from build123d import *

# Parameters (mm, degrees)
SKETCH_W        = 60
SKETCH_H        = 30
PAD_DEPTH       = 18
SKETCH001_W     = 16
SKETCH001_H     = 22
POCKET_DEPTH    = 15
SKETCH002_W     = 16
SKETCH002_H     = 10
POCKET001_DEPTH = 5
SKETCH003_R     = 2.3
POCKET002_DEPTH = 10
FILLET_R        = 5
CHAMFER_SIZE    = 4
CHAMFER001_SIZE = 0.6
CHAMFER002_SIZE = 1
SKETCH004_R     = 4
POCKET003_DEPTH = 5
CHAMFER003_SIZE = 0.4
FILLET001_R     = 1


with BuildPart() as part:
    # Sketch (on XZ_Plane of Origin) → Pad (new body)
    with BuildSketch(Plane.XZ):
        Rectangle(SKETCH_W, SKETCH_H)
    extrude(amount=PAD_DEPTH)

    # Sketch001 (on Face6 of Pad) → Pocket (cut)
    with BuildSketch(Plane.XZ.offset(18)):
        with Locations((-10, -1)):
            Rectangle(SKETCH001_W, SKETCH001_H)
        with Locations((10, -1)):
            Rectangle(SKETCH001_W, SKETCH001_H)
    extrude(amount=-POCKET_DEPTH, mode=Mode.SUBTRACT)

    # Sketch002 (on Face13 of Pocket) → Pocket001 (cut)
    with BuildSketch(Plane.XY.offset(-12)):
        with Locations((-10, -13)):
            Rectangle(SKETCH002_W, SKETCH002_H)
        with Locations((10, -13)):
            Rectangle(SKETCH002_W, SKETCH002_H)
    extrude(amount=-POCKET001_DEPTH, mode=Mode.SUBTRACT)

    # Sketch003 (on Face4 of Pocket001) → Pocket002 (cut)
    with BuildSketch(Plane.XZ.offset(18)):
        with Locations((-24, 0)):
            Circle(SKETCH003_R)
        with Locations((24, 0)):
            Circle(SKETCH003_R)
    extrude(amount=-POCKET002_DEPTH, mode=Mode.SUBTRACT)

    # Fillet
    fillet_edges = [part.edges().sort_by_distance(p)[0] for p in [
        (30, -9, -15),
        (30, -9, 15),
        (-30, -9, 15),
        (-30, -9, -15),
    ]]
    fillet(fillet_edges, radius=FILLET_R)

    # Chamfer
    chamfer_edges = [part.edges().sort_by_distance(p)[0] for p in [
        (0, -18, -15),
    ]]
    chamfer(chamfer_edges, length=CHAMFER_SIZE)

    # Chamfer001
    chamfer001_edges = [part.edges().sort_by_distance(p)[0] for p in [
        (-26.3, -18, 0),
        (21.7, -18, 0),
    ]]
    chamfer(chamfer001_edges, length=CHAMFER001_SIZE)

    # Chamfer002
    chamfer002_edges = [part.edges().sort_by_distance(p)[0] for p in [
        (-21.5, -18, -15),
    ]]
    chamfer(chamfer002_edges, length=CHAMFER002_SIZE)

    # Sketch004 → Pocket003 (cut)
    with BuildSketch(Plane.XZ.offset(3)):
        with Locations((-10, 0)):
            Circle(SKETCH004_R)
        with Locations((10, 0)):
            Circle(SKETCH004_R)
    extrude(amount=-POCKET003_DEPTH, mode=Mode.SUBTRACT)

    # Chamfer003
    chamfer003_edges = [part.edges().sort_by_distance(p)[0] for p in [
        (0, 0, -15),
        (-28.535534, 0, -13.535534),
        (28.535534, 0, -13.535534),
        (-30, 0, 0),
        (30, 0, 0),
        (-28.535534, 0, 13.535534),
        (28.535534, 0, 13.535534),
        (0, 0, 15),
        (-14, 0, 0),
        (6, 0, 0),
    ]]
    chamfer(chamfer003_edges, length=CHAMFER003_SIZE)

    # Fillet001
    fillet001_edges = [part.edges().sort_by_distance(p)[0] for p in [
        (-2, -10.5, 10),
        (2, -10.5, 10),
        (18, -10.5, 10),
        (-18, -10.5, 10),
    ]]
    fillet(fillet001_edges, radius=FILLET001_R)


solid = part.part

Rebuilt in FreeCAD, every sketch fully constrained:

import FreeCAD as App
import Part
import Sketcher

V = App.Vector


def edges_at(feature, points):
    """Names of the edges that pass closest to the given points."""
    edges = feature.Shape.Edges
    near = lambda p: min(range(len(edges)), key=lambda i: edges[i].distToShape(Part.Vertex(*p))[0])
    return sorted({f"Edge{near(p) + 1}" for p in points})


def add_polygon(sketch, points):
    """Adds a closed chain of lines whose ends are joined by coincident constraints."""
    first, n = sketch.GeometryCount, len(points)
    for a, b in zip(points, points[1:] + points[:1]):
        sketch.addGeometry(Part.LineSegment(App.Vector(*a, 0), App.Vector(*b, 0)), False)
    for i in range(n):
        sketch.addConstraint(Sketcher.Constraint("Coincident", first + i, 2, first + (i + 1) % n, 1))

doc = App.newDocument("Part")
params = doc.addObject("Spreadsheet::Sheet", "Params")
for row, (alias, value) in enumerate([
    ("sketch1_width", "60 mm"),
    ("sketch1_height", "30 mm"),
    ("pad1_length", "18 mm"),
    ("sketch2_width", "16 mm"),
    ("sketch2_height", "22 mm"),
    ("pocket1_length", "15 mm"),
    ("sketch3_width", "16 mm"),
    ("sketch3_height", "10 mm"),
    ("pocket2_length", "5 mm"),
    ("sketch4_diameter", "4.6 mm"),
    ("pocket3_length", "10 mm"),
    ("fillet_radius", "5 mm"),
    ("chamfer_size", "4 mm"),
    ("chamfer2_size", "0.6 mm"),
    ("chamfer3_size", "1 mm"),
    ("sketch5_diameter", "8 mm"),
    ("pocket4_length", "5 mm"),
    ("chamfer4_size", "0.4 mm"),
    ("fillet2_radius", "1 mm"),
], start=1):
    params.set(f"A{row}", alias)
    params.set(f"B{row}", "=" + value)
    params.setAlias(f"B{row}", alias)

body = doc.addObject("PartDesign::Body", "Body")

sketch1 = doc.addObject("Sketcher::SketchObject", "Sketch")
body.addObject(sketch1)
sketch1.AttachmentSupport = (doc.XZ_Plane, [""])
sketch1.MapMode = "FlatFace"
add_polygon(sketch1, [(-30, 15), (-30, -15), (30, -15), (30, 15)])
sketch1.addConstraint([
    Sketcher.Constraint("Vertical", 0),
    Sketcher.Constraint("Horizontal", 1),
    Sketcher.Constraint("Vertical", 2),
    Sketcher.Constraint("Horizontal", 3),
    Sketcher.Constraint("Symmetric", 0, 2, 2, 2, -1, 1),
    Sketcher.Constraint("DistanceX", 1, 1, 1, 2, 60.0),
    Sketcher.Constraint("DistanceY", 0, 2, 0, 1, 30.0),
])
sketch1.setExpression("Constraints[9]", "Params.sketch1_width")
sketch1.setExpression("Constraints[10]", "Params.sketch1_height")
pad1 = doc.addObject("PartDesign::Pad", "Pad")
body.addObject(pad1)
pad1.Profile = sketch1
pad1.setExpression("Length", "Params.pad1_length")

sketch2 = doc.addObject("Sketcher::SketchObject", "Sketch001")
body.addObject(sketch2)
sketch2.AttachmentSupport = (doc.XZ_Plane, [""])
sketch2.MapMode = "FlatFace"
sketch2.AttachmentOffset = App.Placement(V(0, 0, 18), App.Rotation())
add_polygon(sketch2, [(-18, 10), (-18, -12), (-2, -12), (-2, 10)])
add_polygon(sketch2, [(2, 10), (2, -12), (18, -12), (18, 10)])
sketch2.addConstraint([
    Sketcher.Constraint("Vertical", 0),
    Sketcher.Constraint("Horizontal", 1),
    Sketcher.Constraint("Vertical", 2),
    Sketcher.Constraint("Horizontal", 3),
    Sketcher.Constraint("Vertical", 4),
    Sketcher.Constraint("Horizontal", 5),
    Sketcher.Constraint("Vertical", 6),
    Sketcher.Constraint("Horizontal", 7),
    Sketcher.Constraint("Symmetric", 1, 2, 4, 2, -2),
    Sketcher.Constraint("Symmetric", 3, 2, 6, 2, -2),
    Sketcher.Constraint("DistanceX", 1, 1, 1, 2, 16.0),
    Sketcher.Constraint("DistanceY", 0, 2, 0, 1, 22.0),
    Sketcher.Constraint("DistanceX", 0, 2, -1, 1, 18.0),
    Sketcher.Constraint("DistanceY", 0, 2, -1, 1, 12.0),
])
sketch2.setExpression("Constraints[18]", "Params.sketch2_width")
sketch2.setExpression("Constraints[19]", "Params.sketch2_height")
pocket1 = doc.addObject("PartDesign::Pocket", "Pocket")
body.addObject(pocket1)
pocket1.Profile = sketch2
pocket1.setExpression("Length", "Params.pocket1_length")

sketch3 = doc.addObject("Sketcher::SketchObject", "Sketch002")
body.addObject(sketch3)
sketch3.AttachmentSupport = (doc.XY_Plane, [""])
sketch3.MapMode = "FlatFace"
sketch3.AttachmentOffset = App.Placement(V(0, 0, -12), App.Rotation())
add_polygon(sketch3, [(-18, -8), (-18, -18), (-2, -18), (-2, -8)])
add_polygon(sketch3, [(2, -8), (2, -18), (18, -18), (18, -8)])
sketch3.addConstraint([
    Sketcher.Constraint("Vertical", 0),
    Sketcher.Constraint("Horizontal", 1),
    Sketcher.Constraint("Vertical", 2),
    Sketcher.Constraint("Horizontal", 3),
    Sketcher.Constraint("Vertical", 4),
    Sketcher.Constraint("Horizontal", 5),
    Sketcher.Constraint("Vertical", 6),
    Sketcher.Constraint("Horizontal", 7),
    Sketcher.Constraint("Symmetric", 1, 2, 4, 2, -2),
    Sketcher.Constraint("Symmetric", 3, 2, 6, 2, -2),
    Sketcher.Constraint("DistanceX", 1, 1, 1, 2, 16.0),
    Sketcher.Constraint("DistanceY", 0, 2, 0, 1, 10.0),
    Sketcher.Constraint("DistanceX", 0, 2, -1, 1, 18.0),
    Sketcher.Constraint("DistanceY", 0, 2, -1, 1, 18.0),
])
sketch3.setExpression("Constraints[18]", "Params.sketch3_width")
sketch3.setExpression("Constraints[19]", "Params.sketch3_height")
pocket2 = doc.addObject("PartDesign::Pocket", "Pocket001")
body.addObject(pocket2)
pocket2.Profile = sketch3
pocket2.setExpression("Length", "Params.pocket2_length")

sketch4 = doc.addObject("Sketcher::SketchObject", "Sketch003")
body.addObject(sketch4)
sketch4.AttachmentSupport = (doc.XZ_Plane, [""])
sketch4.MapMode = "FlatFace"
sketch4.AttachmentOffset = App.Placement(V(0, 0, 18), App.Rotation())
sketch4.addGeometry([
    Part.Circle(V(-24, 0, 0), V(0, 0, 1), 2.3),
    Part.Circle(V(24, 0, 0), V(0, 0, 1), 2.3),
], False)
sketch4.addConstraint([
    Sketcher.Constraint("Equal", 0, 1),
    Sketcher.Constraint("Symmetric", 0, 3, 1, 3, -1, 1),
    Sketcher.Constraint("PointOnObject", 0, 3, -1),
    Sketcher.Constraint("Diameter", 0, 4.6),
    Sketcher.Constraint("DistanceX", 0, 3, -1, 1, 24.0),
])
sketch4.setExpression("Constraints[3]", "Params.sketch4_diameter")
pocket3 = doc.addObject("PartDesign::Pocket", "Pocket002")
body.addObject(pocket3)
pocket3.Profile = sketch4
pocket3.setExpression("Length", "Params.pocket3_length")
doc.recompute()

fillet = doc.addObject("PartDesign::Fillet", "Fillet")
body.addObject(fillet)
fillet.Base = (pocket3, edges_at(pocket3, [
    (30, -9, -15),
    (30, -9, 15),
    (-30, -9, 15),
    (-30, -9, -15),
]))
fillet.setExpression("Radius", "Params.fillet_radius")
doc.recompute()

chamfer = doc.addObject("PartDesign::Chamfer", "Chamfer")
body.addObject(chamfer)
chamfer.Base = (fillet, edges_at(fillet, [(0, -18, -15)]))
chamfer.setExpression("Size", "Params.chamfer_size")
doc.recompute()

chamfer2 = doc.addObject("PartDesign::Chamfer", "Chamfer001")
body.addObject(chamfer2)
chamfer2.Base = (chamfer, edges_at(chamfer, [(-26.3, -18, 0), (21.7, -18, 0)]))
chamfer2.setExpression("Size", "Params.chamfer2_size")
doc.recompute()

chamfer3 = doc.addObject("PartDesign::Chamfer", "Chamfer002")
body.addObject(chamfer3)
chamfer3.Base = (chamfer2, edges_at(chamfer2, [(-21.5, -18, -15)]))
chamfer3.setExpression("Size", "Params.chamfer3_size")

sketch5 = doc.addObject("Sketcher::SketchObject", "Sketch004")
body.addObject(sketch5)
sketch5.AttachmentSupport = (doc.XZ_Plane, [""])
sketch5.MapMode = "FlatFace"
sketch5.AttachmentOffset = App.Placement(V(0, 0, 3), App.Rotation())
sketch5.addGeometry([
    Part.Circle(V(-10, 0, 0), V(0, 0, 1), 4),
    Part.Circle(V(10, 0, 0), V(0, 0, 1), 4),
], False)
sketch5.addConstraint([
    Sketcher.Constraint("Equal", 0, 1),
    Sketcher.Constraint("Symmetric", 0, 3, 1, 3, -1, 1),
    Sketcher.Constraint("PointOnObject", 0, 3, -1),
    Sketcher.Constraint("Diameter", 0, 8.0),
    Sketcher.Constraint("DistanceX", 0, 3, -1, 1, 10.0),
])
sketch5.setExpression("Constraints[3]", "Params.sketch5_diameter")
pocket4 = doc.addObject("PartDesign::Pocket", "Pocket003")
body.addObject(pocket4)
pocket4.Profile = sketch5
pocket4.setExpression("Length", "Params.pocket4_length")
doc.recompute()

chamfer4 = doc.addObject("PartDesign::Chamfer", "Chamfer003")
body.addObject(chamfer4)
chamfer4.Base = (pocket4, edges_at(pocket4, [
    (0, 0, -15),
    (-28.536, 0, -13.536),
    (28.536, 0, -13.536),
    (-30, 0, 0),
    (30, 0, 0),
    (-28.536, 0, 13.536),
    (28.536, 0, 13.536),
    (0, 0, 15),
    (-14, 0, 0),
    (6, 0, 0),
]))
chamfer4.setExpression("Size", "Params.chamfer4_size")
doc.recompute()

fillet2 = doc.addObject("PartDesign::Fillet", "Fillet001")
body.addObject(fillet2)
fillet2.Base = (chamfer4, edges_at(chamfer4, [
    (-2, -10.5, 10),
    (2, -10.5, 10),
    (18, -10.5, 10),
    (-18, -10.5, 10),
]))
fillet2.setExpression("Radius", "Params.fillet2_radius")

doc.recompute()
